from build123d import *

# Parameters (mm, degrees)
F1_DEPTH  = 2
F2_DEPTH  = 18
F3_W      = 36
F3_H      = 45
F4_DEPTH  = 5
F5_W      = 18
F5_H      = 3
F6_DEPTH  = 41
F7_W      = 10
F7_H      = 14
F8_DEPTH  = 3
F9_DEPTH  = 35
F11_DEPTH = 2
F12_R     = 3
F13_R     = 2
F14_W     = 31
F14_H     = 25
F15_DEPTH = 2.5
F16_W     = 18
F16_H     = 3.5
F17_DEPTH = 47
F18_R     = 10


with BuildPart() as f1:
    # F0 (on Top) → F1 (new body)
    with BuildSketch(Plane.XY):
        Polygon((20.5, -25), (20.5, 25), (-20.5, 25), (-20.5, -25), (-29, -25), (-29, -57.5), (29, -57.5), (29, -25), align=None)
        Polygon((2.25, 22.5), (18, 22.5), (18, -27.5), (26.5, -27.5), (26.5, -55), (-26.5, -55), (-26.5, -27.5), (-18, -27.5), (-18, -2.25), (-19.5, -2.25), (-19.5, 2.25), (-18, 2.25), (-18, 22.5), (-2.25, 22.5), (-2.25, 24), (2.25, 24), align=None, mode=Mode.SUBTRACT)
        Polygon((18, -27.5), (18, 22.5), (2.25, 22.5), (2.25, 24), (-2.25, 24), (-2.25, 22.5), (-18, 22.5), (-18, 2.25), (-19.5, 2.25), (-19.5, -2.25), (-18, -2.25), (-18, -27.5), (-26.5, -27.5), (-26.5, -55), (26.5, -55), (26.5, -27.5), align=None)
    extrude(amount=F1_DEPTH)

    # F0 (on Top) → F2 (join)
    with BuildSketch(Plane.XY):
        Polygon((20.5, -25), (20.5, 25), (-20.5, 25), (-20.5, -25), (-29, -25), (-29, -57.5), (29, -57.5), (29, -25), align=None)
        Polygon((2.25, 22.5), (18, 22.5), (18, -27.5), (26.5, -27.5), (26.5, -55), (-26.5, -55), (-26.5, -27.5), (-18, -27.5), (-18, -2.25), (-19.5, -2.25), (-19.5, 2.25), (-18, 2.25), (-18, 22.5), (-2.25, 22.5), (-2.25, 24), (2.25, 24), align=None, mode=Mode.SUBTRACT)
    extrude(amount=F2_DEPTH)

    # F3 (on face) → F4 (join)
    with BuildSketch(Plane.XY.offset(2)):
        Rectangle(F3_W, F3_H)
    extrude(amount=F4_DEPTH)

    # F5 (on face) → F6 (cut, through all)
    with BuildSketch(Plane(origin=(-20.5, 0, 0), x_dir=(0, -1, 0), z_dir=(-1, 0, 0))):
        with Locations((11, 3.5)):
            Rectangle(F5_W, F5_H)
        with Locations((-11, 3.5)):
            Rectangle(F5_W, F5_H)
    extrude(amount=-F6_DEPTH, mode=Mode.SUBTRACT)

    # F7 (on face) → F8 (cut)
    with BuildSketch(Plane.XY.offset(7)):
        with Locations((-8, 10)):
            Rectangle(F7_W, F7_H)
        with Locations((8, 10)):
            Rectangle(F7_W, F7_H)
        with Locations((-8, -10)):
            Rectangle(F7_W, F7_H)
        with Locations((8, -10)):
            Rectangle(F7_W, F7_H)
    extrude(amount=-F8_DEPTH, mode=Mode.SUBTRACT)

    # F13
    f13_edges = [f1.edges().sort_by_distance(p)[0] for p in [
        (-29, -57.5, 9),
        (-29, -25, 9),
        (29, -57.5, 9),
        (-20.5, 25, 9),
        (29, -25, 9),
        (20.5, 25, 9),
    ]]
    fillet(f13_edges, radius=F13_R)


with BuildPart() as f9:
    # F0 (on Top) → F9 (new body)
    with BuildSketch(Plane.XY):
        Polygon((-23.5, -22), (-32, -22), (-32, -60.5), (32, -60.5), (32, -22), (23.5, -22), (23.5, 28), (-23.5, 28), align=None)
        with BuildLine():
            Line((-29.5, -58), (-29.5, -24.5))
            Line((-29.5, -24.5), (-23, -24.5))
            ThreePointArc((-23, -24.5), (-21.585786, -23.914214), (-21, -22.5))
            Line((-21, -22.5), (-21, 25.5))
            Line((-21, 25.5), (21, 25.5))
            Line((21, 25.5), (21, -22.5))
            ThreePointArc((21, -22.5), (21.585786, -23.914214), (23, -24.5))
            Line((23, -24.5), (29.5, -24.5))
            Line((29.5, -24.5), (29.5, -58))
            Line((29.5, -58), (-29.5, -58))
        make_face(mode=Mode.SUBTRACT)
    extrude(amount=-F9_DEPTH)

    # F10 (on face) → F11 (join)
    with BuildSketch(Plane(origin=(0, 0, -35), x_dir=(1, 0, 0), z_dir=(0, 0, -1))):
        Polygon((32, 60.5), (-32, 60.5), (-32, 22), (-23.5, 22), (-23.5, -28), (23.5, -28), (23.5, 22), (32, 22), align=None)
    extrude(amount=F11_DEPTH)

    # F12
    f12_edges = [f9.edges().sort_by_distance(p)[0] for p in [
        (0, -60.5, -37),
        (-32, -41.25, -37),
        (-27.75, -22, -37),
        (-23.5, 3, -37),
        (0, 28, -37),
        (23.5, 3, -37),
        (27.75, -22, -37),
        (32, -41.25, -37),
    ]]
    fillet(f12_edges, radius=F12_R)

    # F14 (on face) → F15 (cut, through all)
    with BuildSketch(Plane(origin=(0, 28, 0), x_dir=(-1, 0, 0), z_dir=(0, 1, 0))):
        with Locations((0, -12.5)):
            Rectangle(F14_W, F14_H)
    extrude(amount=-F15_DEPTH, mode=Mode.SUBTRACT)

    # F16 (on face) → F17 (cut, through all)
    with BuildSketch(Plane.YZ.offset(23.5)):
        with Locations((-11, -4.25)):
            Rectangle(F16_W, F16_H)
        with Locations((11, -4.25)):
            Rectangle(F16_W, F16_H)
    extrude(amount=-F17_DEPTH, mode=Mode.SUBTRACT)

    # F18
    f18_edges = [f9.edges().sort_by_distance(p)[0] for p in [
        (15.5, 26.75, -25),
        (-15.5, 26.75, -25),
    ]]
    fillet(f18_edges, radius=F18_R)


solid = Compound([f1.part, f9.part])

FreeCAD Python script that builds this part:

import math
import FreeCAD as App
import Part
import Sketcher
from FreeCAD import Vector


def edges_at(feature, points):
    """Names of the edges that pass closest to the given points."""
    edges = feature.Shape.Edges
    near = lambda p: min(range(len(edges)), key=lambda i: edges[i].distToShape(Part.Vertex(*p))[0])
    return sorted({f"Edge{near(p) + 1}" for p in points})


def add_polygon(sketch, points):
    """Adds a closed chain of lines whose ends are joined by coincident constraints."""
    first, n = sketch.GeometryCount, len(points)
    for a, b in zip(points, points[1:] + points[:1]):
        sketch.addGeometry(Part.LineSegment(App.Vector(*a, 0), App.Vector(*b, 0)), False)
    for i in range(n):
        sketch.addConstraint(Sketcher.Constraint("Coincident", first + i, 2, first + (i + 1) % n, 1))

doc = App.newDocument("Part")
body = doc.addObject("PartDesign::Body", "Body")

# Sketch on XY plane
sketch1 = body.newObject("Sketcher::SketchObject", "Sketch")
sketch1.AttachmentSupport = (doc.getObject("XY_Plane"), [""])
sketch1.MapMode = "FlatFace"
add_polygon(sketch1, [(20, -25), (20, 25), (-20, 25), (-20, -25), (-29, -25), (-29, -58), (29, -58), (29, -25)])  # lines 0-7
sketch1.addConstraint(Sketcher.Constraint("Vertical", 0))
sketch1.addConstraint(Sketcher.Constraint("Horizontal", 1))
sketch1.addConstraint(Sketcher.Constraint("Vertical", 2))
sketch1.addConstraint(Sketcher.Constraint("Horizontal", 3))
sketch1.addConstraint(Sketcher.Constraint("Vertical", 4))
sketch1.addConstraint(Sketcher.Constraint("Horizontal", 5))
sketch1.addConstraint(Sketcher.Constraint("Vertical", 6))
sketch1.addConstraint(Sketcher.Constraint("Horizontal", 7))
sketch1.addConstraint(Sketcher.Constraint("Symmetric", 0, 2, 2, 2, -1, 1))
sketch1.addConstraint(Sketcher.Constraint("Symmetric", 3, 2, 6, 2, -2))
sketch1.addConstraint(Sketcher.Constraint("DistanceX", 1, 2, 1, 1, 41.0))
sketch1.addConstraint(Sketcher.Constraint("DistanceX", 5, 1, 5, 2, 58.0))
sketch1.addConstraint(Sketcher.Constraint("DistanceY", 0, 1, 0, 2, 50.0))
sketch1.addConstraint(Sketcher.Constraint("DistanceY", 4, 2, 4, 1, 32.5))
pad1 = body.newObject("PartDesign::Pad", "Pad")
pad1.Profile = sketch1
pad1.Length = 2

# Sketch on XY plane
sketch2 = body.newObject("Sketcher::SketchObject", "Sketch001")
sketch2.AttachmentSupport = (doc.getObject("XY_Plane"), [""])
sketch2.MapMode = "FlatFace"
add_polygon(sketch2, [(20.5, -25), (20.5, 25), (-20.5, 25), (-20.5, -25), (-29, -25), (-29, -57.5), (29, -57.5), (29, -25)])  # lines 0-7
add_polygon(sketch2, [(2.2, 24), (2.2, 22.5), (18, 22.5), (18, -27.5), (26.5, -27.5), (26.5, -55), (-26.5, -55), (-26.5, -27.5), (-18, -27.5), (-18, -2.2), (-19.5, -2.2), (-19.5, 2.2), (-18, 2.2), (-18, 22.5), (-2.2, 22.5), (-2.2, 24)])  # lines 8-23
sketch2.addConstraint(Sketcher.Constraint("Vertical", 0))
sketch2.addConstraint(Sketcher.Constraint("Horizontal", 1))
sketch2.addConstraint(Sketcher.Constraint("Vertical", 2))
sketch2.addConstraint(Sketcher.Constraint("Horizontal", 3))
sketch2.addConstraint(Sketcher.Constraint("Vertical", 4))
sketch2.addConstraint(Sketcher.Constraint("Horizontal", 5))
sketch2.addConstraint(Sketcher.Constraint("Vertical", 6))
sketch2.addConstraint(Sketcher.Constraint("Horizontal", 7))
sketch2.addConstraint(Sketcher.Constraint("Vertical", 8))
sketch2.addConstraint(Sketcher.Constraint("Horizontal", 9))
sketch2.addConstraint(Sketcher.Constraint("Vertical", 10))
sketch2.addConstraint(Sketcher.Constraint("Horizontal", 11))
sketch2.addConstraint(Sketcher.Constraint("Vertical", 12))
sketch2.addConstraint(Sketcher.Constraint("Horizontal", 13))
sketch2.addConstraint(Sketcher.Constraint("Vertical", 14))
sketch2.addConstraint(Sketcher.Constraint("Horizontal", 15))
sketch2.addConstraint(Sketcher.Constraint("Vertical", 16))
sketch2.addConstraint(Sketcher.Constraint("Horizontal", 17))
sketch2.addConstraint(Sketcher.Constraint("Vertical", 18))
sketch2.addConstraint(Sketcher.Constraint("Horizontal", 19))
sketch2.addConstraint(Sketcher.Constraint("Vertical", 20))
sketch2.addConstraint(Sketcher.Constraint("Horizontal", 21))
sketch2.addConstraint(Sketcher.Constraint("Vertical", 22))
sketch2.addConstraint(Sketcher.Constraint("Horizontal", 23))
sketch2.addConstraint(Sketcher.Constraint("Symmetric", 0, 2, 2, 2, -1, 1))
sketch2.addConstraint(Sketcher.Constraint("Symmetric", 3, 2, 6, 2, -2))
sketch2.addConstraint(Sketcher.Constraint("Symmetric", 11, 2, 14, 2, -2))
sketch2.addConstraint(Sketcher.Constraint("Symmetric", 9, 2, 20, 2, -2))
sketch2.addConstraint(Sketcher.Constraint("Symmetric", 16, 2, 19, 2, -1))
sketch2.addConstraint(Sketcher.Constraint("Equal", 7, 11))
sketch2.addConstraint(Sketcher.Constraint("Equal", 9, 21))
sketch2.addConstraint(Sketcher.Constraint("Equal", 19, 8))
sketch2.addConstraint(Sketcher.Constraint("Equal", 2, 10))
sketch2.addConstraint(Sketcher.Constraint("Equal", 23, 18))
sketch2.addConstraint(Sketcher.Constraint("DistanceX", 1, 2, 1, 1, 41.0))
sketch2.addConstraint(Sketcher.Constraint("DistanceX", 5, 1, 5, 2, 58.0))
sketch2.addConstraint(Sketcher.Constraint("DistanceX", 13, 2, 13, 1, 53.0))
sketch2.addConstraint(Sketcher.Constraint("DistanceY", 0, 1, 0, 2, 50.0))
sketch2.addConstraint(Sketcher.Constraint("DistanceX", 17, 2, 17, 1, 1.5))
sketch2.addConstraint(Sketcher.Constraint("DistanceX", 23, 1, 23, 2, 4.5))
sketch2.addConstraint(Sketcher.Constraint("DistanceY", 4, 2, 4, 1, 32.5))
sketch2.addConstraint(Sketcher.Constraint("DistanceY", 12, 2, 12, 1, 27.5))
sketch2.addConstraint(Sketcher.Constraint("DistanceY", 12, 2, -1, 1, 55.0))
pad2 = body.newObject("PartDesign::Pad", "Pad001")
pad2.Profile = sketch2
pad2.Length = 18

# Sketch on XY plane
sketch3 = body.newObject("Sketcher::SketchObject", "Sketch002")
sketch3.AttachmentSupport = (doc.getObject("XY_Plane"), [""])
sketch3.MapMode = "FlatFace"
sketch3.AttachmentOffset = App.Placement(Vector(0, 0, 2), App.Rotation())
add_polygon(sketch3, [(-18, 22), (-18, -22), (18, -22), (18, 22)])  # lines 0-3
sketch3.addConstraint(Sketcher.Constraint("Vertical", 0))
sketch3.addConstraint(Sketcher.Constraint("Horizontal", 1))
sketch3.addConstraint(Sketcher.Constraint("Vertical", 2))
sketch3.addConstraint(Sketcher.Constraint("Horizontal", 3))
sketch3.addConstraint(Sketcher.Constraint("Symmetric", 0, 2, 2, 2, -1, 1))
sketch3.addConstraint(Sketcher.Constraint("DistanceX", 1, 1, 1, 2, 36.0))
sketch3.addConstraint(Sketcher.Constraint("DistanceY", 0, 2, 0, 1, 45.0))
pad3 = body.newObject("PartDesign::Pad", "Pad002")
pad3.Profile = sketch3
pad3.Length = 5

# Sketch on YZ plane
sketch4 = body.newObject("Sketcher::SketchObject", "Sketch003")
sketch4.AttachmentSupport = (doc.getObject("YZ_Plane"), [""])
sketch4.MapMode = "FlatFace"
sketch4.AttachmentOffset = App.Placement(Vector(0, 0, -20.5), App.Rotation())
add_polygon(sketch4, [(-2, 5), (-2, 2), (-20, 2), (-20, 5)])  # lines 0-3
add_polygon(sketch4, [(20, 5), (20, 2), (2, 2), (2, 5)])  # lines 4-7
sketch4.addConstraint(Sketcher.Constraint("Vertical", 0))
sketch4.addConstraint(Sketcher.Constraint("Horizontal", 1))
sketch4.addConstraint(Sketcher.Constraint("Vertical", 2))
sketch4.addConstraint(Sketcher.Constraint("Horizontal", 3))
sketch4.addConstraint(Sketcher.Constraint("Vertical", 4))
sketch4.addConstraint(Sketcher.Constraint("Horizontal", 5))
sketch4.addConstraint(Sketcher.Constraint("Vertical", 6))
sketch4.addConstraint(Sketcher.Constraint("Horizontal", 7))
sketch4.addConstraint(Sketcher.Constraint("Symmetric", 1, 2, 4, 2, -2))
sketch4.addConstraint(Sketcher.Constraint("Symmetric", 3, 2, 6, 2, -2))
sketch4.addConstraint(Sketcher.Constraint("DistanceX", 1, 2, 1, 1, 18.0))
sketch4.addConstraint(Sketcher.Constraint("DistanceY", 0, 2, 0, 1, 3.0))
sketch4.addConstraint(Sketcher.Constraint("DistanceX", 0, 2, -1, 1, 2.0))
sketch4.addConstraint(Sketcher.Constraint("DistanceY", -1, 1, 0, 2, 2.0))
pocket1 = body.newObject("PartDesign::Pocket", "Pocket")
pocket1.Profile = sketch4
pocket1.Type = "ThroughAll"
pocket1.Reversed = True

# Sketch on XY plane
sketch5 = body.newObject("Sketcher::SketchObject", "Sketch004")
sketch5.AttachmentSupport = (doc.getObject("XY_Plane"), [""])
sketch5.MapMode = "FlatFace"
sketch5.AttachmentOffset = App.Placement(Vector(0, 0, 7), App.Rotation())
add_polygon(sketch5, [(-13, 17), (-13, 3), (-3, 3), (-3, 17)])  # lines 0-3
add_polygon(sketch5, [(3, 17), (3, 3), (13, 3), (13, 17)])  # lines 4-7
add_polygon(sketch5, [(-13, -3), (-13, -17), (-3, -17), (-3, -3)])  # lines 8-11
add_polygon(sketch5, [(3, -3), (3, -17), (13, -17), (13, -3)])  # lines 12-15
sketch5.addConstraint(Sketcher.Constraint("Vertical", 0))
sketch5.addConstraint(Sketcher.Constraint("Horizontal", 1))
sketch5.addConstraint(Sketcher.Constraint("Vertical", 2))
sketch5.addConstraint(Sketcher.Constraint("Horizontal", 3))
sketch5.addConstraint(Sketcher.Constraint("Vertical", 4))
sketch5.addConstraint(Sketcher.Constraint("Horizontal", 5))
sketch5.addConstraint(Sketcher.Constraint("Vertical", 6))
sketch5.addConstraint(Sketcher.Constraint("Horizontal", 7))
sketch5.addConstraint(Sketcher.Constraint("Vertical", 8))
sketch5.addConstraint(Sketcher.Constraint("Horizontal", 9))
sketch5.addConstraint(Sketcher.Constraint("Vertical", 10))
sketch5.addConstraint(Sketcher.Constraint("Horizontal", 11))
sketch5.addConstraint(Sketcher.Constraint("Vertical", 12))
sketch5.addConstraint(Sketcher.Constraint("Horizontal", 13))
sketch5.addConstraint(Sketcher.Constraint("Vertical", 14))
sketch5.addConstraint(Sketcher.Constraint("Horizontal", 15))
sketch5.addConstraint(Sketcher.Constraint("Symmetric", 6, 2, 8, 2, -1, 1))
sketch5.addConstraint(Sketcher.Constraint("Symmetric", 4, 2, 10, 2, -1, 1))
sketch5.addConstraint(Sketcher.Constraint("Symmetric", 2, 2, 12, 2, -1, 1))
sketch5.addConstraint(Sketcher.Constraint("Symmetric", 0, 2, 14, 2, -1, 1))
sketch5.addConstraint(Sketcher.Constraint("Symmetric", 1, 2, 4, 2, -2))
sketch5.addConstraint(Sketcher.Constraint("Symmetric", 3, 2, 6, 2, -2))
sketch5.addConstraint(Sketcher.Constraint("DistanceX", 1, 1, 1, 2, 10.0))
sketch5.addConstraint(Sketcher.Constraint("DistanceY", 0, 2, 0, 1, 14.0))
sketch5.addConstraint(Sketcher.Constraint("DistanceX", 0, 2, -1, 1, 13.0))
sketch5.addConstraint(Sketcher.Constraint("DistanceY", -1, 1, 0, 2, 3.0))
pocket2 = body.newObject("PartDesign::Pocket", "Pocket001")
pocket2.Profile = sketch5
pocket2.Length = 3
doc.recompute()

fillet = body.newObject("PartDesign::Fillet", "Fillet")
fillet.Base = (pocket2, edges_at(pocket2, [
    (-29, -57.5, 9),
    (-29, -25, 9),
    (29, -57.5, 9),
    (-20.5, 25, 9),
    (29, -25, 9),
    (20.5, 25, 9),
]))
fillet.Radius = 2
body2 = doc.addObject("PartDesign::Body", "Body001")

# Sketch on XY plane
sketch6 = body2.newObject("Sketcher::SketchObject", "Sketch005")
sketch6.AttachmentSupport = (doc.getObject("XY_Plane001"), [""])
sketch6.MapMode = "FlatFace"
add_polygon(sketch6, [(-23.5, -22), (-32, -22), (-32, -60.5), (32, -60.5), (32, -22), (23.5, -22), (23.5, 28), (-23.5, 28)])  # lines 0-7
sketch6.addGeometry(Part.LineSegment(Vector(29.5, -58, 0), Vector(-29.5, -58, 0)), False)  # 8
sketch6.addGeometry(Part.LineSegment(Vector(-29.5, -58, 0), Vector(-29.5, -24.5, 0)), False)  # 9
sketch6.addGeometry(Part.LineSegment(Vector(-29.5, -24.5, 0), Vector(-23, -24.5, 0)), False)  # 10
sketch6.addGeometry(Part.ArcOfCircle(Part.Circle(Vector(-23, -22.5, 0), Vector(0, 0, 1), 2), math.radians(-90), math.radians(0)), False)  # 11
sketch6.addGeometry(Part.LineSegment(Vector(-21, -22.5, 0), Vector(-21, 25.5, 0)), False)  # 12
sketch6.addGeometry(Part.LineSegment(Vector(-21, 25.5, 0), Vector(21, 25.5, 0)), False)  # 13
sketch6.addGeometry(Part.LineSegment(Vector(21, 25.5, 0), Vector(21, -22.5, 0)), False)  # 14
sketch6.addGeometry(Part.ArcOfCircle(Part.Circle(Vector(23, -22.5, 0), Vector(0, 0, 1), 2), math.radians(180), math.radians(270)), False)  # 15
sketch6.addGeometry(Part.LineSegment(Vector(23, -24.5, 0), Vector(29.5, -24.5, 0)), False)  # 16
sketch6.addGeometry(Part.LineSegment(Vector(29.5, -24.5, 0), Vector(29.5, -58, 0)), False)  # 17
sketch6.addConstraint(Sketcher.Constraint("Coincident", 8, 2, 9, 1))
sketch6.addConstraint(Sketcher.Constraint("Coincident", 9, 2, 10, 1))
sketch6.addConstraint(Sketcher.Constraint("Tangent", 10, 2, 11, 1))
sketch6.addConstraint(Sketcher.Constraint("Tangent", 11, 2, 12, 1))
sketch6.addConstraint(Sketcher.Constraint("Coincident", 12, 2, 13, 1))
sketch6.addConstraint(Sketcher.Constraint("Coincident", 13, 2, 14, 1))
sketch6.addConstraint(Sketcher.Constraint("Tangent", 14, 2, 15, 1))
sketch6.addConstraint(Sketcher.Constraint("Tangent", 15, 2, 16, 1))
sketch6.addConstraint(Sketcher.Constraint("Coincident", 16, 2, 17, 1))
sketch6.addConstraint(Sketcher.Constraint("Coincident", 17, 2, 8, 1))
sketch6.addConstraint(Sketcher.Constraint("Horizontal", 0))
sketch6.addConstraint(Sketcher.Constraint("Vertical", 1))
sketch6.addConstraint(Sketcher.Constraint("Horizontal", 2))
sketch6.addConstraint(Sketcher.Constraint("Vertical", 3))
sketch6.addConstraint(Sketcher.Constraint("Horizontal", 4))
sketch6.addConstraint(Sketcher.Constraint("Vertical", 5))
sketch6.addConstraint(Sketcher.Constraint("Horizontal", 6))
sketch6.addConstraint(Sketcher.Constraint("Vertical", 7))
sketch6.addConstraint(Sketcher.Constraint("Horizontal", 8))
sketch6.addConstraint(Sketcher.Constraint("Vertical", 9))
sketch6.addConstraint(Sketcher.Constraint("Horizontal", 10))
sketch6.addConstraint(Sketcher.Constraint("Vertical", 12))
sketch6.addConstraint(Sketcher.Constraint("Horizontal", 13))
sketch6.addConstraint(Sketcher.Constraint("Vertical", 14))
sketch6.addConstraint(Sketcher.Constraint("Horizontal", 16))
sketch6.addConstraint(Sketcher.Constraint("Vertical", 17))
sketch6.addConstraint(Sketcher.Constraint("Equal", 11, 15))
sketch6.addConstraint(Sketcher.Constraint("Symmetric", 11, 3, 15, 3, -2))
sketch6.addConstraint(Sketcher.Constraint("Symmetric", 0, 2, 3, 2, -2))
sketch6.addConstraint(Sketcher.Constraint("Equal", 0, 4))
sketch6.addConstraint(Sketcher.Constraint("Equal", 10, 16))
sketch6.addConstraint(Sketcher.Constraint("Radius", 11, 1.999999))
sketch6.addConstraint(Sketcher.Constraint("DistanceX", 2, 1, 2, 2, 64.0))
sketch6.addConstraint(Sketcher.Constraint("DistanceX", 6, 2, 6, 1, 47.0))
sketch6.addConstraint(Sketcher.Constraint("DistanceX", 8, 2, 8, 1, 59.0))
sketch6.addConstraint(Sketcher.Constraint("DistanceX", 13, 1, 13, 2, 42.0))
sketch6.addConstraint(Sketcher.Constraint("DistanceY", 5, 1, 5, 2, 50.0))
sketch6.addConstraint(Sketcher.Constraint("DistanceY", 12, 1, 12, 2, 48.0))
sketch6.addConstraint(Sketcher.Constraint("DistanceY", 1, 2, 1, 1, 38.5))
sketch6.addConstraint(Sketcher.Constraint("DistanceY", 9, 1, 9, 2, 33.5))
sketch6.addConstraint(Sketcher.Constraint("DistanceY", 0, 2, -1, 1, 22.0))
sketch6.addConstraint(Sketcher.Constraint("DistanceY", 8, 2, -1, 1, 58.0))
pad4 = body2.newObject("PartDesign::Pad", "Pad003")
pad4.Profile = sketch6
pad4.Length = 35
pad4.Reversed = True

# Sketch on XY plane
sketch7 = body2.newObject("Sketcher::SketchObject", "Sketch006")
sketch7.AttachmentSupport = (doc.getObject("XY_Plane001"), [""])
sketch7.MapMode = "FlatFace"
sketch7.AttachmentOffset = App.Placement(Vector(0, 0, -35), App.Rotation())
add_polygon(sketch7, [(32, -60), (-32, -60), (-32, -22), (-24, -22), (-24, 28), (24, 28), (24, -22), (32, -22)])  # lines 0-7
sketch7.addConstraint(Sketcher.Constraint("Horizontal", 0))
sketch7.addConstraint(Sketcher.Constraint("Vertical", 1))
sketch7.addConstraint(Sketcher.Constraint("Horizontal", 2))
sketch7.addConstraint(Sketcher.Constraint("Vertical", 3))
sketch7.addConstraint(Sketcher.Constraint("Horizontal", 4))
sketch7.addConstraint(Sketcher.Constraint("Vertical", 5))
sketch7.addConstraint(Sketcher.Constraint("Horizontal", 6))
sketch7.addConstraint(Sketcher.Constraint("Vertical", 7))
sketch7.addConstraint(Sketcher.Constraint("Symmetric", 2, 2, 5, 2, -2))
sketch7.addConstraint(Sketcher.Constraint("Equal", 2, 6))
sketch7.addConstraint(Sketcher.Constraint("DistanceX", 0, 2, 0, 1, 64.0))
sketch7.addConstraint(Sketcher.Constraint("DistanceX", 4, 1, 4, 2, 47.0))
sketch7.addConstraint(Sketcher.Constraint("DistanceY", 3, 1, 3, 2, 50.0))
sketch7.addConstraint(Sketcher.Constraint("DistanceY", 1, 1, 1, 2, 38.5))
sketch7.addConstraint(Sketcher.Constraint("DistanceY", 1, 2, -1, 1, 22.0))
pad5 = body2.newObject("PartDesign::Pad", "Pad004")
pad5.Profile = sketch7
pad5.Length = 2
pad5.Reversed = True
doc.recompute()

fillet2 = body2.newObject("PartDesign::Fillet", "Fillet001")
fillet2.Base = (pad5, edges_at(pad5, [
    (0, -60.5, -37),
    (-32, -41.25, -37),
    (-27.75, -22, -37),
    (-23.5, 3, -37),
    (0, 28, -37),
    (23.5, 3, -37),
    (27.75, -22, -37),
    (32, -41.25, -37),
]))
fillet2.Radius = 3

# Sketch on XZ plane
sketch8 = body2.newObject("Sketcher::SketchObject", "Sketch007")
sketch8.AttachmentSupport = (doc.getObject("XZ_Plane001"), [""])
sketch8.MapMode = "FlatFace"
sketch8.AttachmentOffset = App.Placement(Vector(0, 0, -28), App.Rotation())
add_polygon(sketch8, [(16, 0), (16, -25), (-16, -25), (-16, 0)])  # lines 0-3
sketch8.addConstraint(Sketcher.Constraint("Vertical", 0))
sketch8.addConstraint(Sketcher.Constraint("Horizontal", 1))
sketch8.addConstraint(Sketcher.Constraint("Vertical", 2))
sketch8.addConstraint(Sketcher.Constraint("Horizontal", 3))
sketch8.addConstraint(Sketcher.Constraint("Symmetric", 2, 2, 3, 2, -1, 1))
sketch8.addConstraint(Sketcher.Constraint("DistanceX", 1, 2, 1, 1, 31.0))
sketch8.addConstraint(Sketcher.Constraint("DistanceY", 0, 2, 0, 1, 25.0))
pocket3 = body2.newObject("PartDesign::Pocket", "Pocket002")
pocket3.Profile = sketch8
pocket3.Length = 2.5
pocket3.Reversed = True

# Sketch on YZ plane
sketch9 = body2.newObject("Sketcher::SketchObject", "Sketch008")
sketch9.AttachmentSupport = (doc.getObject("YZ_Plane001"), [""])
sketch9.MapMode = "FlatFace"
sketch9.AttachmentOffset = App.Placement(Vector(0, 0, 23.5), App.Rotation())
add_polygon(sketch9, [(-20, -2.5), (-20, -6), (-2, -6), (-2, -2.5)])  # lines 0-3
add_polygon(sketch9, [(2, -2.5), (2, -6), (20, -6), (20, -2.5)])  # lines 4-7
sketch9.addConstraint(Sketcher.Constraint("Vertical", 0))
sketch9.addConstraint(Sketcher.Constraint("Horizontal", 1))
sketch9.addConstraint(Sketcher.Constraint("Vertical", 2))
sketch9.addConstraint(Sketcher.Constraint("Horizontal", 3))
sketch9.addConstraint(Sketcher.Constraint("Vertical", 4))
sketch9.addConstraint(Sketcher.Constraint("Horizontal", 5))
sketch9.addConstraint(Sketcher.Constraint("Vertical", 6))
sketch9.addConstraint(Sketcher.Constraint("Horizontal", 7))
sketch9.addConstraint(Sketcher.Constraint("Symmetric", 1, 2, 4, 2, -2))
sketch9.addConstraint(Sketcher.Constraint("Symmetric", 3, 2, 6, 2, -2))
sketch9.addConstraint(Sketcher.Constraint("DistanceX", 1, 1, 1, 2, 18.0))
sketch9.addConstraint(Sketcher.Constraint("DistanceY", 0, 2, 0, 1, 3.5))
sketch9.addConstraint(Sketcher.Constraint("DistanceX", 0, 2, -1, 1, 20.0))
sketch9.addConstraint(Sketcher.Constraint("DistanceY", 0, 2, -1, 1, 6.0))
pocket4 = body2.newObject("PartDesign::Pocket", "Pocket003")
pocket4.Profile = sketch9
pocket4.Type = "ThroughAll"
doc.recompute()

fillet3 = body2.newObject("PartDesign::Fillet", "Fillet002")
fillet3.Base = (pocket4, edges_at(pocket4, [(15.5, 26.75, -25), (-15.5, 26.75, -25)]))
fillet3.Radius = 10

doc.recompute()
